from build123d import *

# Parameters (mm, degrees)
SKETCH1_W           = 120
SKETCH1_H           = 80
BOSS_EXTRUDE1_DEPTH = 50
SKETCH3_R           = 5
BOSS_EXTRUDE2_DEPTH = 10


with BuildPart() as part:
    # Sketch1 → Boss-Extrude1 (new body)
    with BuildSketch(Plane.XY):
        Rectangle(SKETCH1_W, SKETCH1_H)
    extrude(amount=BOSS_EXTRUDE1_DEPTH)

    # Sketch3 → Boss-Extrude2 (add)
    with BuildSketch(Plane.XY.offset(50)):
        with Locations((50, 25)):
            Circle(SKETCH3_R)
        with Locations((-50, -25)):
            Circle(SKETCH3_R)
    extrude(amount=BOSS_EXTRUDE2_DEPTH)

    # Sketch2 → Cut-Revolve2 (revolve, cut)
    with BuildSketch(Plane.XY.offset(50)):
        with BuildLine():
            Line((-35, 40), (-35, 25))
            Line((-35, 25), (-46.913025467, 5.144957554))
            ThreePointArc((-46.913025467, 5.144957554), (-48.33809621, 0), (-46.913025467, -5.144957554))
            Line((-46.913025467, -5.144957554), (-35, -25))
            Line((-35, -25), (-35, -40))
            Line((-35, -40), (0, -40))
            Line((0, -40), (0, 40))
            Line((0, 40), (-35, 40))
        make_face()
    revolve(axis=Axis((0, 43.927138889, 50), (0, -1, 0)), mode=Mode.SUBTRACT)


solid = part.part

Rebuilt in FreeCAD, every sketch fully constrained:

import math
import FreeCAD as App
import Part
import Sketcher

V = App.Vector

doc = App.newDocument("Part")
body = doc.addObject("PartDesign::Body", "Body")

sketch1 = body.newObject("Sketcher::SketchObject", "Sketch")
sketch1.AttachmentSupport = (doc.getObject("XY_Plane"), [""])
sketch1.MapMode = "FlatFace"
sketch1.addGeometry(Part.LineSegment(V(-60, 40, 0), V(-60, -40, 0)), False)
sketch1.addGeometry(Part.LineSegment(V(-60, -40, 0), V(60, -40, 0)), False)
sketch1.addGeometry(Part.LineSegment(V(60, -40, 0), V(60, 40, 0)), False)
sketch1.addGeometry(Part.LineSegment(V(60, 40, 0), V(-60, 40, 0)), False)
sketch1.addConstraint(Sketcher.Constraint("Coincident", 0, 2, 1, 1))
sketch1.addConstraint(Sketcher.Constraint("Coincident", 1, 2, 2, 1))
sketch1.addConstraint(Sketcher.Constraint("Coincident", 2, 2, 3, 1))
sketch1.addConstraint(Sketcher.Constraint("Coincident", 3, 2, 0, 1))
sketch1.addConstraint(Sketcher.Constraint("Vertical", 0))
sketch1.addConstraint(Sketcher.Constraint("Horizontal", 1))
sketch1.addConstraint(Sketcher.Constraint("Vertical", 2))
sketch1.addConstraint(Sketcher.Constraint("Horizontal", 3))
sketch1.addConstraint(Sketcher.Constraint("Symmetric", 0, 2, 2, 2, -1, 1))
sketch1.addConstraint(Sketcher.Constraint("DistanceX", 1, 1, 1, 2, 120.0))
sketch1.addConstraint(Sketcher.Constraint("DistanceY", 0, 2, 0, 1, 80.0))
pad1 = body.newObject("PartDesign::Pad", "Pad")
pad1.Profile = sketch1
pad1.Length = 50

sketch2 = body.newObject("Sketcher::SketchObject", "Sketch001")
sketch2.AttachmentSupport = (doc.getObject("XY_Plane"), [""])
sketch2.MapMode = "FlatFace"
sketch2.AttachmentOffset = App.Placement(V(0, 0, 50), App.Rotation())
sketch2.addGeometry(Part.Circle(V(50, 25, 0), V(0, 0, 1), 5), False)
sketch2.addGeometry(Part.Circle(V(-50, -25, 0), V(0, 0, 1), 5), False)
sketch2.addConstraint(Sketcher.Constraint("Equal", 0, 1))
sketch2.addConstraint(Sketcher.Constraint("Symmetric", 0, 3, 1, 3, -1, 1))
sketch2.addConstraint(Sketcher.Constraint("Diameter", 0, 10.0))
sketch2.addConstraint(Sketcher.Constraint("DistanceX", -1, 1, 0, 3, 50.0))
sketch2.addConstraint(Sketcher.Constraint("DistanceY", -1, 1, 0, 3, 25.0))
pad2 = body.newObject("PartDesign::Pad", "Pad001")
pad2.Profile = sketch2
pad2.Length = 10

sketch3 = body.newObject("Sketcher::SketchObject", "Sketch002")
sketch3.AttachmentSupport = (doc.getObject("XY_Plane"), [""])
sketch3.MapMode = "FlatFace"
sketch3.AttachmentOffset = App.Placement(V(0, 0, 50), App.Rotation())
sketch3.addGeometry(Part.LineSegment(V(-35, 40, 0), V(-35, 25, 0)), False)
sketch3.addGeometry(Part.LineSegment(V(-35, 25, 0), V(-47, 5, 0)), False)
sketch3.addGeometry(Part.ArcOfCircle(Part.Circle(V(-38, 0, 0), V(0, 0, 1), 10), math.radians(149), math.radians(211)), False)
sketch3.addGeometry(Part.LineSegment(V(-47, -5, 0), V(-35, -25, 0)), False)
sketch3.addGeometry(Part.LineSegment(V(-35, -25, 0), V(-35, -40, 0)), False)
sketch3.addGeometry(Part.LineSegment(V(-35, -40, 0), V(0, -40, 0)), False)
sketch3.addGeometry(Part.LineSegment(V(0, -40, 0), V(0, 40, 0)), False)
sketch3.addGeometry(Part.LineSegment(V(0, 40, 0), V(-35, 40, 0)), False)
sketch3.addConstraint(Sketcher.Constraint("Coincident", 0, 2, 1, 1))
sketch3.addConstraint(Sketcher.Constraint("Tangent", 1, 2, 2, 1))
sketch3.addConstraint(Sketcher.Constraint("Tangent", 2, 2, 3, 1))
sketch3.addConstraint(Sketcher.Constraint("Coincident", 3, 2, 4, 1))
sketch3.addConstraint(Sketcher.Constraint("Coincident", 4, 2, 5, 1))
sketch3.addConstraint(Sketcher.Constraint("Coincident", 5, 2, 6, 1))
sketch3.addConstraint(Sketcher.Constraint("Coincident", 6, 2, 7, 1))
sketch3.addConstraint(Sketcher.Constraint("Coincident", 7, 2, 0, 1))
sketch3.addConstraint(Sketcher.Constraint("Vertical", 0))
sketch3.addConstraint(Sketcher.Constraint("Vertical", 4))
sketch3.addConstraint(Sketcher.Constraint("Horizontal", 5))
sketch3.addConstraint(Sketcher.Constraint("Vertical", 6))
sketch3.addConstraint(Sketcher.Constraint("Horizontal", 7))
sketch3.addConstraint(Sketcher.Constraint("Symmetric", 5, 2, 6, 2, -1, 1))
sketch3.addConstraint(Sketcher.Constraint("Symmetric", 1, 2, 2, 2, -1))
sketch3.addConstraint(Sketcher.Constraint("Vertical", 0, 2, 3, 2))
sketch3.addConstraint(Sketcher.Constraint("Radius", 2, 10.0))
sketch3.addConstraint(Sketcher.Constraint("DistanceX", 5, 1, 5, 2, 35.0))
sketch3.addConstraint(Sketcher.Constraint("DistanceY", 0, 2, 0, 1, 15.0))
sketch3.addConstraint(Sketcher.Constraint("DistanceY", 6, 1, 6, 2, 80.0))
sketch3.addConstraint(Sketcher.Constraint("Distance", 1, 23.154759))
groove = body.newObject("PartDesign::Groove", "Groove")
groove.Profile = sketch3
groove.ReferenceAxis = (sketch3, ["V_Axis"])
groove.Angle = 360

doc.recompute()
